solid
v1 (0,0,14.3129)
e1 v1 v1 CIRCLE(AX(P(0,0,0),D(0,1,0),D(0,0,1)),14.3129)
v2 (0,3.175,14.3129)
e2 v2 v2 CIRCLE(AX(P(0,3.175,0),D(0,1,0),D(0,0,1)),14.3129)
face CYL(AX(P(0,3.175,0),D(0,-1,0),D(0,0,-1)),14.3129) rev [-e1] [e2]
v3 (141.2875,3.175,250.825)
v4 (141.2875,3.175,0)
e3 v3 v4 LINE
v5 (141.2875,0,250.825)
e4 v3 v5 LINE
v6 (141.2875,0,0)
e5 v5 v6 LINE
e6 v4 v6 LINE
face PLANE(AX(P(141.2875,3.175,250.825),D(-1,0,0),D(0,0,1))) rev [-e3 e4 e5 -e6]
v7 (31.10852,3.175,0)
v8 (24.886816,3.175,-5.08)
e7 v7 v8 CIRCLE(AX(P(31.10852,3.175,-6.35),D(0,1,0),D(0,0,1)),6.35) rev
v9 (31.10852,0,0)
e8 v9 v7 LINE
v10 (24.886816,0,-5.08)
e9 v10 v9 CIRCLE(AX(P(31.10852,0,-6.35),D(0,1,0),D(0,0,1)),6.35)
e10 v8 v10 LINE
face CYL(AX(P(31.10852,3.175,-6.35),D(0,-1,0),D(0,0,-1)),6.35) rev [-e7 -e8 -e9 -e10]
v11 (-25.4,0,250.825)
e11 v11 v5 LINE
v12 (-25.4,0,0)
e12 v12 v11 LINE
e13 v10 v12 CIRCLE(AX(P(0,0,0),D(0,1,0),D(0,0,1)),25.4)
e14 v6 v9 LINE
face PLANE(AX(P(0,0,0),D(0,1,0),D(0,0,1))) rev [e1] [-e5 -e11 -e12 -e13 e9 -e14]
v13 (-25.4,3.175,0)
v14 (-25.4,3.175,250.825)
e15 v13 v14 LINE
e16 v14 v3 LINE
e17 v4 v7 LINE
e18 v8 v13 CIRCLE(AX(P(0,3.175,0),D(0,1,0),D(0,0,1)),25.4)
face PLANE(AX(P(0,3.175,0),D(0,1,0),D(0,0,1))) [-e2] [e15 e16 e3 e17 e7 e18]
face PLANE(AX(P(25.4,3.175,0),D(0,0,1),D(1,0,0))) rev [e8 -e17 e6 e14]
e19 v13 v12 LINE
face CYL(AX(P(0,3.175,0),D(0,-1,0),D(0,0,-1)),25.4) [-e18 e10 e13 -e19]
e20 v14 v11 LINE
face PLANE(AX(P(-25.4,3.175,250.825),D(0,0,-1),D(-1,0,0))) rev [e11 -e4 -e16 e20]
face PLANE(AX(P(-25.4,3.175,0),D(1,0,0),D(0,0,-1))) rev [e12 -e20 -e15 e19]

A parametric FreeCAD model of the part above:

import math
import FreeCAD as App
import Part
import Sketcher
from FreeCAD import Vector
Q = App.Units.Quantity


def edges_at(feature, points):
    """Names of the edges that pass closest to the given points."""
    edges = feature.Shape.Edges
    near = lambda p: min(range(len(edges)), key=lambda i: edges[i].distToShape(Part.Vertex(*p))[0])
    return sorted({f"Edge{near(p) + 1}" for p in points})

doc = App.newDocument("Part")
body = doc.addObject("PartDesign::Body", "Body")

# Sketch on XZ plane
sketch1 = body.newObject("Sketcher::SketchObject", "Sketch")
sketch1.AttachmentSupport = (doc.getObject("XZ_Plane"), [""])
sketch1.MapMode = "FlatFace"
sketch1.addGeometry([
    Part.LineSegment(Vector(-25.4, 0, 0), Vector(-25.4, 250.825, 0)),  # 0
    Part.LineSegment(Vector(-25.4, 250.825, 0), Vector(141.2875, 250.825, 0)),  # 1
    Part.LineSegment(Vector(141.2875, 250.825, 0), Vector(141.2875, 0, 0)),  # 2
    Part.LineSegment(Vector(141.2875, 0, 0), Vector(25.4, 0, 0)),  # 3
    Part.ArcOfCircle(Part.Circle(Vector(0, 0, 0), Vector(0, 0, 1), 25.4), math.radians(180), math.radians(360)),  # 4
    Part.Circle(Vector(0, 0, 0), Vector(0, 0, 1), 14.3129),  # 5
], False)
sketch1.addConstraint([
    Sketcher.Constraint("Coincident", 0, 2, 1, 1),
    Sketcher.Constraint("Coincident", 1, 2, 2, 1),
    Sketcher.Constraint("Coincident", 2, 2, 3, 1),
    Sketcher.Constraint("Coincident", 3, 2, 4, 2),
    Sketcher.Constraint("Tangent", 4, 1, 0, 1),
    Sketcher.Constraint("Vertical", 0),
    Sketcher.Constraint("Horizontal", 1),
    Sketcher.Constraint("Vertical", 2),
    Sketcher.Constraint("Horizontal", 3),
    Sketcher.Constraint("Coincident", 4, 3, -1, 1),
    Sketcher.Constraint("Coincident", 5, 3, -1, 1),
    Sketcher.Constraint("PointOnObject", 2, 2, -1),
    Sketcher.Constraint("Radius", 4, Q("1 in")),
    Sketcher.Constraint("Diameter", 5, Q("1.127 in")),
    Sketcher.Constraint("DistanceX", 1, 1, 1, 2, Q("6.5625 in")),
    Sketcher.Constraint("DistanceY", 0, 1, 0, 2, Q("9.875 in")),
])
pad1 = body.newObject("PartDesign::Pad", "Pad")
pad1.Profile = sketch1
pad1.Length = Q("0.125 in")
pad1.Reversed = True
doc.recompute()

fillet = body.newObject("PartDesign::Fillet", "Fillet")
fillet.Base = (pad1, edges_at(pad1, [(25.4, 1.587, 0)]))
fillet.Radius = Q("0.25 in")

doc.recompute()
